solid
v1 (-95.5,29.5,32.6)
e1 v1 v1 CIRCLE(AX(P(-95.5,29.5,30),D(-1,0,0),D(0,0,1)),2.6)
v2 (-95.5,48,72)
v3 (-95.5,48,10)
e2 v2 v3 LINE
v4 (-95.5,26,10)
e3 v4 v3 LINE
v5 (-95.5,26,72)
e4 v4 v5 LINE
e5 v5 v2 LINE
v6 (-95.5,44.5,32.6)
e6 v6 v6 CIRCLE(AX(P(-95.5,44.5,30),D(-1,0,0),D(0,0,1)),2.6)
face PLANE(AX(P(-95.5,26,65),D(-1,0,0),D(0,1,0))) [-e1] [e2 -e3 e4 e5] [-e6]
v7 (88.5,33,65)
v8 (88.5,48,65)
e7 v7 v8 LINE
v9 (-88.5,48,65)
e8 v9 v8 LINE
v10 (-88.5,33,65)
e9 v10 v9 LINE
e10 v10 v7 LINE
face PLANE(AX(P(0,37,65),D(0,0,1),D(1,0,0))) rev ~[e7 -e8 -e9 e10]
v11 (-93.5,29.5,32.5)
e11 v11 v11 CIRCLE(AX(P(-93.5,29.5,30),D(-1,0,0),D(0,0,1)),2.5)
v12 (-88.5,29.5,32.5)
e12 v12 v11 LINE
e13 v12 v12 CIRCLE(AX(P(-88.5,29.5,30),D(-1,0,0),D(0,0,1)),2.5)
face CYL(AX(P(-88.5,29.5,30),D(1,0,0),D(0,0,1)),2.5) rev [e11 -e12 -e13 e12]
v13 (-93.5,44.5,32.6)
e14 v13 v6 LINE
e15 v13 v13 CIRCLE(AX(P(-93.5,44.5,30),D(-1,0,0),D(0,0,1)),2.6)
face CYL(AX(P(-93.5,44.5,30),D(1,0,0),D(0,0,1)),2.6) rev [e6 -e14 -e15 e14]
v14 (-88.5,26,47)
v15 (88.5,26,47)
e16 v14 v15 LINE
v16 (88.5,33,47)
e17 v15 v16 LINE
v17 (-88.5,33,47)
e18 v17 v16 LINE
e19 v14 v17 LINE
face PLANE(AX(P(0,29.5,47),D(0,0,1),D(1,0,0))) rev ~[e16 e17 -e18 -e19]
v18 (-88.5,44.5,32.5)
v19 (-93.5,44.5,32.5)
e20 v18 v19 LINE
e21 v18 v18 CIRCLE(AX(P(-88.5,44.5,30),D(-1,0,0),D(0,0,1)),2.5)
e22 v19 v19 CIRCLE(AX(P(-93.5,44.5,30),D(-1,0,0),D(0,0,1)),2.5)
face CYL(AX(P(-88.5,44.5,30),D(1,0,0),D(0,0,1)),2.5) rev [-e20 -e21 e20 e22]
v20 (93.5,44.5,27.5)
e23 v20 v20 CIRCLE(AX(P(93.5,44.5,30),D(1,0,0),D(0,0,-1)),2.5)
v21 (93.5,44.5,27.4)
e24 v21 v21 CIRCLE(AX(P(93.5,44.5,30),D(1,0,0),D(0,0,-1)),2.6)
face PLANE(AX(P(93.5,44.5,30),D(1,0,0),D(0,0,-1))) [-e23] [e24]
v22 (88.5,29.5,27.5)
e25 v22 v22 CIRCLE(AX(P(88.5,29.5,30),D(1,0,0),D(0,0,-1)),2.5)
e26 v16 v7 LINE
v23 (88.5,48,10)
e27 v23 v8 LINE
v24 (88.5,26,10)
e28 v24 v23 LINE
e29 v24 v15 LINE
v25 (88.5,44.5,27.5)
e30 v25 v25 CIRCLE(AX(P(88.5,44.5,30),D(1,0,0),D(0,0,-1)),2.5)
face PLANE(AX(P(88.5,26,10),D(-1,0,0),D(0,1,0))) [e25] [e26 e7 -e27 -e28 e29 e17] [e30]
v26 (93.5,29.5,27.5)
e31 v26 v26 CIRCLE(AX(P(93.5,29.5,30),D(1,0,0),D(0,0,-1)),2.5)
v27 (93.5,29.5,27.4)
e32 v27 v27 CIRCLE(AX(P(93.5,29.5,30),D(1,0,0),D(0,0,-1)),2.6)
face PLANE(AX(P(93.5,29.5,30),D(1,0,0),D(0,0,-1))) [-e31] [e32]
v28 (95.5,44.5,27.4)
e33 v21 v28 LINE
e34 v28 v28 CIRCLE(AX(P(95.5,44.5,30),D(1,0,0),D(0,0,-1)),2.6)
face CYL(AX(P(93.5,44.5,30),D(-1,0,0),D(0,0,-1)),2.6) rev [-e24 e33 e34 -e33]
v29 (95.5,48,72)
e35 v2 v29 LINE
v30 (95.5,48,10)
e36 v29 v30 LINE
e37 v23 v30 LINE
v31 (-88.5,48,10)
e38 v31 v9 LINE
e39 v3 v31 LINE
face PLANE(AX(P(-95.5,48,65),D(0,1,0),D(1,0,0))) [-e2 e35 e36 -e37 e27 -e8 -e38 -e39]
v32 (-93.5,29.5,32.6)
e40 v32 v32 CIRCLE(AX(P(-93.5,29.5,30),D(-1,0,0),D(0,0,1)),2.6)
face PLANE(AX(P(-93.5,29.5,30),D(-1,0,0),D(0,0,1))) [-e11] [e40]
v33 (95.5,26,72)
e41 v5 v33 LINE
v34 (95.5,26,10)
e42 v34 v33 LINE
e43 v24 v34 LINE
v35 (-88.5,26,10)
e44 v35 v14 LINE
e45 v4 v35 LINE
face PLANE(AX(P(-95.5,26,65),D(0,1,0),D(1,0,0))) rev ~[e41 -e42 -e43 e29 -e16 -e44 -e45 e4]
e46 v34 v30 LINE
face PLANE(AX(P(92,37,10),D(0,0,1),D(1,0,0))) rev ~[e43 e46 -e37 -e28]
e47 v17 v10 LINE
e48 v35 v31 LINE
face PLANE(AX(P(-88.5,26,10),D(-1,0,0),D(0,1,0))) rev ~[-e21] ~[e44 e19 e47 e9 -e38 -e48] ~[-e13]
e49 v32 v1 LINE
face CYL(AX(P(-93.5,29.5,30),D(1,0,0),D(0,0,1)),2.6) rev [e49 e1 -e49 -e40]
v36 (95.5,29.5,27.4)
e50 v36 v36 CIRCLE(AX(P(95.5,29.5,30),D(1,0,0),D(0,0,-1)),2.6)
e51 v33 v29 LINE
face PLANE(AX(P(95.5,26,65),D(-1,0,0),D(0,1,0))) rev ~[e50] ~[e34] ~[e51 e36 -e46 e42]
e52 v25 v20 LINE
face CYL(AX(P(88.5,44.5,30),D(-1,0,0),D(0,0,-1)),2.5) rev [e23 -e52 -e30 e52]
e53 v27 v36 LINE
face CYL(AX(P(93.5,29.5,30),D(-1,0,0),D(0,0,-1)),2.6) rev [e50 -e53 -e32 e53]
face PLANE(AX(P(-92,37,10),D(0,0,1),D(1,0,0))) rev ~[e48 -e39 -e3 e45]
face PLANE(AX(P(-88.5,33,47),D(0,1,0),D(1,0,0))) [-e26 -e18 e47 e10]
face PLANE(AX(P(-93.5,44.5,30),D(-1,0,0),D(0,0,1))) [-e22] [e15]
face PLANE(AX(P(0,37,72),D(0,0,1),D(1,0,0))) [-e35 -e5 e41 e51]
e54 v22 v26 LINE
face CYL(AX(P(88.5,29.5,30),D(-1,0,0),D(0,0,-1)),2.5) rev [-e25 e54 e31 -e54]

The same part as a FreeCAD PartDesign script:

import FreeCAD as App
import Part
import Sketcher
Q = App.Units.Quantity

doc = App.newDocument("Part")
body = doc.addObject("PartDesign::Body", "Body")

# Sketch on XY plane
sketch1 = body.newObject("Sketcher::SketchObject", "Sketch")
sketch1.AttachmentSupport = (doc.getObject("XY_Plane"), [""])
sketch1.MapMode = "FlatFace"
sketch1.AttachmentOffset = App.Placement(App.Vector(0, 0, 5), App.Rotation())
sketch1.addGeometry(Part.Circle(App.Vector(0, 0, 0), App.Vector(0, 0, 1), 2.6), False)
sketch1.addConstraint([
    Sketcher.Constraint("Coincident", 0, 3, -1, 1),
    Sketcher.Constraint("Diameter", 0, Q("5.2 mm")),
])
pad1 = body.newObject("PartDesign::Pad", "Pad")
pad1.Profile = sketch1
pad1.Length = 2
body2 = doc.addObject("PartDesign::Body", "Body001")

# Sketch on XY plane
sketch2 = body2.newObject("Sketcher::SketchObject", "Sketch001")
sketch2.AttachmentSupport = (doc.getObject("XY_Plane001"), [""])
sketch2.MapMode = "FlatFace"
sketch2.addGeometry(Part.Circle(App.Vector(0, 0, 0), App.Vector(0, 0, 1), 2.5), False)
sketch2.addConstraint([
    Sketcher.Constraint("Coincident", 0, 3, -1, 1),
    Sketcher.Constraint("Diameter", 0, Q("5 mm")),
])
pad2 = body2.newObject("PartDesign::Pad", "Pad001")
pad2.Profile = sketch2
pad2.Length = 5
doc.recompute()

boolean = body2.newObject("PartDesign::Boolean", "Boolean")
boolean.Type = "Fuse"
boolean.addObjects([body])
body3 = doc.addObject("PartDesign::Body", "Body002")
doc.recompute()

body2.Placement = App.Placement(App.Vector(88.5, 29.5, 30), App.Rotation(App.Vector(0, 1, 0), 90))
boolean2 = body3.newObject("PartDesign::Boolean", "Boolean001")
boolean2.Type = "Fuse"
boolean2.addObjects([body2])
body4 = doc.addObject("PartDesign::Body", "Body003")

# Sketch on XY plane
sketch3 = body4.newObject("Sketcher::SketchObject", "Sketch002")
sketch3.AttachmentSupport = (doc.getObject("XY_Plane003"), [""])
sketch3.MapMode = "FlatFace"
sketch3.AttachmentOffset = App.Placement(App.Vector(0, 0, 5), App.Rotation())
sketch3.addGeometry(Part.Circle(App.Vector(0, 0, 0), App.Vector(0, 0, 1), 2.6), False)
sketch3.addConstraint([
    Sketcher.Constraint("Coincident", 0, 3, -1, 1),
    Sketcher.Constraint("Diameter", 0, Q("5.2 mm")),
])
pad3 = body4.newObject("PartDesign::Pad", "Pad002")
pad3.Profile = sketch3
pad3.Length = 2
body5 = doc.addObject("PartDesign::Body", "Body004")

# Sketch on XY plane
sketch4 = body5.newObject("Sketcher::SketchObject", "Sketch003")
sketch4.AttachmentSupport = (doc.getObject("XY_Plane004"), [""])
sketch4.MapMode = "FlatFace"
sketch4.addGeometry(Part.Circle(App.Vector(0, 0, 0), App.Vector(0, 0, 1), 2.5), False)
sketch4.addConstraint([
    Sketcher.Constraint("Coincident", 0, 3, -1, 1),
    Sketcher.Constraint("Diameter", 0, Q("5 mm")),
])
pad4 = body5.newObject("PartDesign::Pad", "Pad003")
pad4.Profile = sketch4
pad4.Length = 5
doc.recompute()

boolean3 = body5.newObject("PartDesign::Boolean", "Boolean002")
boolean3.Type = "Fuse"
boolean3.addObjects([body4])
body6 = doc.addObject("PartDesign::Body", "Body005")
doc.recompute()

body5.Placement = App.Placement(App.Vector(88.5, 44.5, 30), App.Rotation(App.Vector(0, 1, 0), 90))
boolean4 = body6.newObject("PartDesign::Boolean", "Boolean003")
boolean4.Type = "Fuse"
boolean4.addObjects([body5])
body7 = doc.addObject("PartDesign::Body", "Body006")

# Sketch on XY plane
sketch5 = body7.newObject("Sketcher::SketchObject", "Sketch004")
sketch5.AttachmentSupport = (doc.getObject("XY_Plane006"), [""])
sketch5.MapMode = "FlatFace"
sketch5.AttachmentOffset = App.Placement(App.Vector(0, 0, 5), App.Rotation())
sketch5.addGeometry(Part.Circle(App.Vector(0, 0, 0), App.Vector(0, 0, 1), 2.6), False)
sketch5.addConstraint([
    Sketcher.Constraint("Coincident", 0, 3, -1, 1),
    Sketcher.Constraint("Diameter", 0, Q("5.2 mm")),
])
pad5 = body7.newObject("PartDesign::Pad", "Pad004")
pad5.Profile = sketch5
pad5.Length = 2
body8 = doc.addObject("PartDesign::Body", "Body007")

# Sketch on XY plane
sketch6 = body8.newObject("Sketcher::SketchObject", "Sketch005")
sketch6.AttachmentSupport = (doc.getObject("XY_Plane007"), [""])
sketch6.MapMode = "FlatFace"
sketch6.addGeometry(Part.Circle(App.Vector(0, 0, 0), App.Vector(0, 0, 1), 2.5), False)
sketch6.addConstraint([
    Sketcher.Constraint("Coincident", 0, 3, -1, 1),
    Sketcher.Constraint("Diameter", 0, Q("5 mm")),
])
pad6 = body8.newObject("PartDesign::Pad", "Pad005")
pad6.Profile = sketch6
pad6.Length = 5
doc.recompute()

boolean5 = body8.newObject("PartDesign::Boolean", "Boolean004")
boolean5.Type = "Fuse"
boolean5.addObjects([body7])
body9 = doc.addObject("PartDesign::Body", "Body008")
doc.recompute()

body8.Placement = App.Placement(App.Vector(-88.5, 44.5, 30), App.Rotation(App.Vector(0, -1, 0), 90))
boolean6 = body9.newObject("PartDesign::Boolean", "Boolean005")
boolean6.Type = "Fuse"
boolean6.addObjects([body8])
body10 = doc.addObject("PartDesign::Body", "Body009")

# Sketch on XY plane
sketch7 = body10.newObject("Sketcher::SketchObject", "Sketch006")
sketch7.AttachmentSupport = (doc.getObject("XY_Plane009"), [""])
sketch7.MapMode = "FlatFace"
sketch7.AttachmentOffset = App.Placement(App.Vector(0, 0, 5), App.Rotation())
sketch7.addGeometry(Part.Circle(App.Vector(0, 0, 0), App.Vector(0, 0, 1), 2.6), False)
sketch7.addConstraint([
    Sketcher.Constraint("Coincident", 0, 3, -1, 1),
    Sketcher.Constraint("Diameter", 0, Q("5.2 mm")),
])
pad7 = body10.newObject("PartDesign::Pad", "Pad006")
pad7.Profile = sketch7
pad7.Length = 2
body11 = doc.addObject("PartDesign::Body", "Body010")

# Sketch on XY plane
sketch8 = body11.newObject("Sketcher::SketchObject", "Sketch007")
sketch8.AttachmentSupport = (doc.getObject("XY_Plane010"), [""])
sketch8.MapMode = "FlatFace"
sketch8.addGeometry(Part.Circle(App.Vector(0, 0, 0), App.Vector(0, 0, 1), 2.5), False)
sketch8.addConstraint([
    Sketcher.Constraint("Coincident", 0, 3, -1, 1),
    Sketcher.Constraint("Diameter", 0, Q("5 mm")),
])
pad8 = body11.newObject("PartDesign::Pad", "Pad007")
pad8.Profile = sketch8
pad8.Length = 5
doc.recompute()

boolean7 = body11.newObject("PartDesign::Boolean", "Boolean006")
boolean7.Type = "Fuse"
boolean7.addObjects([body10])
body12 = doc.addObject("PartDesign::Body", "Body011")
body12.AllowCompound = True
doc.recompute()

body11.Placement = App.Placement(App.Vector(-88.5, 29.5, 30), App.Rotation(App.Vector(0, 1, 0), 270))
boolean8 = body12.newObject("PartDesign::Boolean", "Boolean007")
boolean8.Type = "Fuse"
boolean8.addObjects([body11])
doc.recompute()

boolean9 = body12.newObject("PartDesign::Boolean", "Boolean008")
boolean9.Type = "Fuse"
boolean9.addObjects([body3])
doc.recompute()

boolean10 = body12.newObject("PartDesign::Boolean", "Boolean009")
boolean10.Type = "Fuse"
boolean10.addObjects([body6])
doc.recompute()

boolean11 = body12.newObject("PartDesign::Boolean", "Boolean010")
boolean11.Type = "Fuse"
boolean11.addObjects([body9])
body13 = doc.addObject("PartDesign::Body", "Body012")

# Sketch on XY plane
sketch9 = body13.newObject("Sketcher::SketchObject", "Sketch008")
sketch9.AttachmentSupport = (doc.getObject("XY_Plane012"), [""])
sketch9.MapMode = "FlatFace"
sketch9.AttachmentOffset = App.Placement(App.Vector(0, 0, 47), App.Rotation())
sketch9.addGeometry([
    Part.LineSegment(App.Vector(-88, 33, 0), App.Vector(-88, 26, 0)),
    Part.LineSegment(App.Vector(-88, 26, 0), App.Vector(88, 26, 0)),
    Part.LineSegment(App.Vector(88, 26, 0), App.Vector(88, 33, 0)),
    Part.LineSegment(App.Vector(88, 33, 0), App.Vector(-88, 33, 0)),
], False)
sketch9.addConstraint([
    Sketcher.Constraint("Coincident", 0, 2, 1, 1),
    Sketcher.Constraint("Coincident", 1, 2, 2, 1),
    Sketcher.Constraint("Coincident", 2, 2, 3, 1),
    Sketcher.Constraint("Coincident", 3, 2, 0, 1),
    Sketcher.Constraint("Vertical", 0),
    Sketcher.Constraint("Horizontal", 1),
    Sketcher.Constraint("Vertical", 2),
    Sketcher.Constraint("Horizontal", 3),
    Sketcher.Constraint("DistanceX", 1, 1, 1, 2, Q("177 mm")),
    Sketcher.Constraint("DistanceY", 0, 2, 0, 1, Q("7 mm")),
    Sketcher.Constraint("DistanceY", -1, 1, 0, 2, Q("26 mm")),
    Sketcher.Constraint("DistanceX", 0, 2, -1, 1, Q("88.5 mm")),
])
pad9 = body13.newObject("PartDesign::Pad", "Pad008")
pad9.Profile = sketch9
pad9.Length = 18
body14 = doc.addObject("PartDesign::Body", "Body013")

# Sketch on XY plane
sketch10 = body14.newObject("Sketcher::SketchObject", "Sketch009")
sketch10.AttachmentSupport = (doc.getObject("XY_Plane013"), [""])
sketch10.MapMode = "FlatFace"
sketch10.AttachmentOffset = App.Placement(App.Vector(0, 0, 10), App.Rotation())
sketch10.addGeometry([
    Part.LineSegment(App.Vector(88, 48, 0), App.Vector(88, 26, 0)),
    Part.LineSegment(App.Vector(88, 26, 0), App.Vector(96, 26, 0)),
    Part.LineSegment(App.Vector(96, 26, 0), App.Vector(96, 48, 0)),
    Part.LineSegment(App.Vector(96, 48, 0), App.Vector(88, 48, 0)),
], False)
sketch10.addConstraint([
    Sketcher.Constraint("Coincident", 0, 2, 1, 1),
    Sketcher.Constraint("Coincident", 1, 2, 2, 1),
    Sketcher.Constraint("Coincident", 2, 2, 3, 1),
    Sketcher.Constraint("Coincident", 3, 2, 0, 1),
    Sketcher.Constraint("Vertical", 0),
    Sketcher.Constraint("Horizontal", 1),
    Sketcher.Constraint("Vertical", 2),
    Sketcher.Constraint("Horizontal", 3),
    Sketcher.Constraint("DistanceX", 1, 1, 1, 2, Q("7 mm")),
    Sketcher.Constraint("DistanceY", 0, 2, 0, 1, Q("22 mm")),
    Sketcher.Constraint("DistanceY", -1, 1, 0, 2, Q("26 mm")),
    Sketcher.Constraint("DistanceX", -1, 1, 0, 2, Q("88.5 mm")),
])
pad10 = body14.newObject("PartDesign::Pad", "Pad009")
pad10.Profile = sketch10
pad10.Length = 55
body15 = doc.addObject("PartDesign::Body", "Body014")

# Sketch on XY plane
sketch11 = body15.newObject("Sketcher::SketchObject", "Sketch010")
sketch11.AttachmentSupport = (doc.getObject("XY_Plane014"), [""])
sketch11.MapMode = "FlatFace"
sketch11.AttachmentOffset = App.Placement(App.Vector(0, 0, 65), App.Rotation())
sketch11.addGeometry([
    Part.LineSegment(App.Vector(-96, 48, 0), App.Vector(-96, 26, 0)),
    Part.LineSegment(App.Vector(-96, 26, 0), App.Vector(96, 26, 0)),
    Part.LineSegment(App.Vector(96, 26, 0), App.Vector(96, 48, 0)),
    Part.LineSegment(App.Vector(96, 48, 0), App.Vector(-96, 48, 0)),
], False)
sketch11.addConstraint([
    Sketcher.Constraint("Coincident", 0, 2, 1, 1),
    Sketcher.Constraint("Coincident", 1, 2, 2, 1),
    Sketcher.Constraint("Coincident", 2, 2, 3, 1),
    Sketcher.Constraint("Coincident", 3, 2, 0, 1),
    Sketcher.Constraint("Vertical", 0),
    Sketcher.Constraint("Horizontal", 1),
    Sketcher.Constraint("Vertical", 2),
    Sketcher.Constraint("Horizontal", 3),
    Sketcher.Constraint("DistanceX", 1, 1, 1, 2, Q("191 mm")),
    Sketcher.Constraint("DistanceY", 0, 2, 0, 1, Q("22 mm")),
    Sketcher.Constraint("DistanceY", -1, 1, 0, 2, Q("26 mm")),
    Sketcher.Constraint("DistanceX", 0, 2, -1, 1, Q("95.5 mm")),
])
pad11 = body15.newObject("PartDesign::Pad", "Pad010")
pad11.Profile = sketch11
pad11.Length = 7
body16 = doc.addObject("PartDesign::Body", "Body015")

# Sketch on XY plane
sketch12 = body16.newObject("Sketcher::SketchObject", "Sketch011")
sketch12.AttachmentSupport = (doc.getObject("XY_Plane015"), [""])
sketch12.MapMode = "FlatFace"
sketch12.AttachmentOffset = App.Placement(App.Vector(0, 0, 10), App.Rotation())
sketch12.addGeometry([
    Part.LineSegment(App.Vector(-96, 48, 0), App.Vector(-96, 26, 0)),
    Part.LineSegment(App.Vector(-96, 26, 0), App.Vector(-88, 26, 0)),
    Part.LineSegment(App.Vector(-88, 26, 0), App.Vector(-88, 48, 0)),
    Part.LineSegment(App.Vector(-88, 48, 0), App.Vector(-96, 48, 0)),
], False)
sketch12.addConstraint([
    Sketcher.Constraint("Coincident", 0, 2, 1, 1),
    Sketcher.Constraint("Coincident", 1, 2, 2, 1),
    Sketcher.Constraint("Coincident", 2, 2, 3, 1),
    Sketcher.Constraint("Coincident", 3, 2, 0, 1),
    Sketcher.Constraint("Vertical", 0),
    Sketcher.Constraint("Horizontal", 1),
    Sketcher.Constraint("Vertical", 2),
    Sketcher.Constraint("Horizontal", 3),
    Sketcher.Constraint("DistanceX", 1, 1, 1, 2, Q("7 mm")),
    Sketcher.Constraint("DistanceY", 0, 2, 0, 1, Q("22 mm")),
    Sketcher.Constraint("DistanceY", -1, 1, 0, 2, Q("26 mm")),
    Sketcher.Constraint("DistanceX", 0, 2, -1, 1, Q("95.5 mm")),
])
pad12 = body16.newObject("PartDesign::Pad", "Pad011")
pad12.Profile = sketch12
pad12.Length = 55
doc.recompute()

boolean12 = body16.newObject("PartDesign::Boolean", "Boolean011")
boolean12.Type = "Fuse"
boolean12.addObjects([body13])
doc.recompute()

boolean13 = body16.newObject("PartDesign::Boolean", "Boolean012")
boolean13.Type = "Fuse"
boolean13.addObjects([body14])
doc.recompute()

boolean14 = body16.newObject("PartDesign::Boolean", "Boolean013")
boolean14.Type = "Fuse"
boolean14.addObjects([body15])
doc.recompute()

boolean15 = body16.newObject("PartDesign::Boolean", "Boolean014")
boolean15.Type = "Cut"
boolean15.addObjects([body12])

doc.recompute()
